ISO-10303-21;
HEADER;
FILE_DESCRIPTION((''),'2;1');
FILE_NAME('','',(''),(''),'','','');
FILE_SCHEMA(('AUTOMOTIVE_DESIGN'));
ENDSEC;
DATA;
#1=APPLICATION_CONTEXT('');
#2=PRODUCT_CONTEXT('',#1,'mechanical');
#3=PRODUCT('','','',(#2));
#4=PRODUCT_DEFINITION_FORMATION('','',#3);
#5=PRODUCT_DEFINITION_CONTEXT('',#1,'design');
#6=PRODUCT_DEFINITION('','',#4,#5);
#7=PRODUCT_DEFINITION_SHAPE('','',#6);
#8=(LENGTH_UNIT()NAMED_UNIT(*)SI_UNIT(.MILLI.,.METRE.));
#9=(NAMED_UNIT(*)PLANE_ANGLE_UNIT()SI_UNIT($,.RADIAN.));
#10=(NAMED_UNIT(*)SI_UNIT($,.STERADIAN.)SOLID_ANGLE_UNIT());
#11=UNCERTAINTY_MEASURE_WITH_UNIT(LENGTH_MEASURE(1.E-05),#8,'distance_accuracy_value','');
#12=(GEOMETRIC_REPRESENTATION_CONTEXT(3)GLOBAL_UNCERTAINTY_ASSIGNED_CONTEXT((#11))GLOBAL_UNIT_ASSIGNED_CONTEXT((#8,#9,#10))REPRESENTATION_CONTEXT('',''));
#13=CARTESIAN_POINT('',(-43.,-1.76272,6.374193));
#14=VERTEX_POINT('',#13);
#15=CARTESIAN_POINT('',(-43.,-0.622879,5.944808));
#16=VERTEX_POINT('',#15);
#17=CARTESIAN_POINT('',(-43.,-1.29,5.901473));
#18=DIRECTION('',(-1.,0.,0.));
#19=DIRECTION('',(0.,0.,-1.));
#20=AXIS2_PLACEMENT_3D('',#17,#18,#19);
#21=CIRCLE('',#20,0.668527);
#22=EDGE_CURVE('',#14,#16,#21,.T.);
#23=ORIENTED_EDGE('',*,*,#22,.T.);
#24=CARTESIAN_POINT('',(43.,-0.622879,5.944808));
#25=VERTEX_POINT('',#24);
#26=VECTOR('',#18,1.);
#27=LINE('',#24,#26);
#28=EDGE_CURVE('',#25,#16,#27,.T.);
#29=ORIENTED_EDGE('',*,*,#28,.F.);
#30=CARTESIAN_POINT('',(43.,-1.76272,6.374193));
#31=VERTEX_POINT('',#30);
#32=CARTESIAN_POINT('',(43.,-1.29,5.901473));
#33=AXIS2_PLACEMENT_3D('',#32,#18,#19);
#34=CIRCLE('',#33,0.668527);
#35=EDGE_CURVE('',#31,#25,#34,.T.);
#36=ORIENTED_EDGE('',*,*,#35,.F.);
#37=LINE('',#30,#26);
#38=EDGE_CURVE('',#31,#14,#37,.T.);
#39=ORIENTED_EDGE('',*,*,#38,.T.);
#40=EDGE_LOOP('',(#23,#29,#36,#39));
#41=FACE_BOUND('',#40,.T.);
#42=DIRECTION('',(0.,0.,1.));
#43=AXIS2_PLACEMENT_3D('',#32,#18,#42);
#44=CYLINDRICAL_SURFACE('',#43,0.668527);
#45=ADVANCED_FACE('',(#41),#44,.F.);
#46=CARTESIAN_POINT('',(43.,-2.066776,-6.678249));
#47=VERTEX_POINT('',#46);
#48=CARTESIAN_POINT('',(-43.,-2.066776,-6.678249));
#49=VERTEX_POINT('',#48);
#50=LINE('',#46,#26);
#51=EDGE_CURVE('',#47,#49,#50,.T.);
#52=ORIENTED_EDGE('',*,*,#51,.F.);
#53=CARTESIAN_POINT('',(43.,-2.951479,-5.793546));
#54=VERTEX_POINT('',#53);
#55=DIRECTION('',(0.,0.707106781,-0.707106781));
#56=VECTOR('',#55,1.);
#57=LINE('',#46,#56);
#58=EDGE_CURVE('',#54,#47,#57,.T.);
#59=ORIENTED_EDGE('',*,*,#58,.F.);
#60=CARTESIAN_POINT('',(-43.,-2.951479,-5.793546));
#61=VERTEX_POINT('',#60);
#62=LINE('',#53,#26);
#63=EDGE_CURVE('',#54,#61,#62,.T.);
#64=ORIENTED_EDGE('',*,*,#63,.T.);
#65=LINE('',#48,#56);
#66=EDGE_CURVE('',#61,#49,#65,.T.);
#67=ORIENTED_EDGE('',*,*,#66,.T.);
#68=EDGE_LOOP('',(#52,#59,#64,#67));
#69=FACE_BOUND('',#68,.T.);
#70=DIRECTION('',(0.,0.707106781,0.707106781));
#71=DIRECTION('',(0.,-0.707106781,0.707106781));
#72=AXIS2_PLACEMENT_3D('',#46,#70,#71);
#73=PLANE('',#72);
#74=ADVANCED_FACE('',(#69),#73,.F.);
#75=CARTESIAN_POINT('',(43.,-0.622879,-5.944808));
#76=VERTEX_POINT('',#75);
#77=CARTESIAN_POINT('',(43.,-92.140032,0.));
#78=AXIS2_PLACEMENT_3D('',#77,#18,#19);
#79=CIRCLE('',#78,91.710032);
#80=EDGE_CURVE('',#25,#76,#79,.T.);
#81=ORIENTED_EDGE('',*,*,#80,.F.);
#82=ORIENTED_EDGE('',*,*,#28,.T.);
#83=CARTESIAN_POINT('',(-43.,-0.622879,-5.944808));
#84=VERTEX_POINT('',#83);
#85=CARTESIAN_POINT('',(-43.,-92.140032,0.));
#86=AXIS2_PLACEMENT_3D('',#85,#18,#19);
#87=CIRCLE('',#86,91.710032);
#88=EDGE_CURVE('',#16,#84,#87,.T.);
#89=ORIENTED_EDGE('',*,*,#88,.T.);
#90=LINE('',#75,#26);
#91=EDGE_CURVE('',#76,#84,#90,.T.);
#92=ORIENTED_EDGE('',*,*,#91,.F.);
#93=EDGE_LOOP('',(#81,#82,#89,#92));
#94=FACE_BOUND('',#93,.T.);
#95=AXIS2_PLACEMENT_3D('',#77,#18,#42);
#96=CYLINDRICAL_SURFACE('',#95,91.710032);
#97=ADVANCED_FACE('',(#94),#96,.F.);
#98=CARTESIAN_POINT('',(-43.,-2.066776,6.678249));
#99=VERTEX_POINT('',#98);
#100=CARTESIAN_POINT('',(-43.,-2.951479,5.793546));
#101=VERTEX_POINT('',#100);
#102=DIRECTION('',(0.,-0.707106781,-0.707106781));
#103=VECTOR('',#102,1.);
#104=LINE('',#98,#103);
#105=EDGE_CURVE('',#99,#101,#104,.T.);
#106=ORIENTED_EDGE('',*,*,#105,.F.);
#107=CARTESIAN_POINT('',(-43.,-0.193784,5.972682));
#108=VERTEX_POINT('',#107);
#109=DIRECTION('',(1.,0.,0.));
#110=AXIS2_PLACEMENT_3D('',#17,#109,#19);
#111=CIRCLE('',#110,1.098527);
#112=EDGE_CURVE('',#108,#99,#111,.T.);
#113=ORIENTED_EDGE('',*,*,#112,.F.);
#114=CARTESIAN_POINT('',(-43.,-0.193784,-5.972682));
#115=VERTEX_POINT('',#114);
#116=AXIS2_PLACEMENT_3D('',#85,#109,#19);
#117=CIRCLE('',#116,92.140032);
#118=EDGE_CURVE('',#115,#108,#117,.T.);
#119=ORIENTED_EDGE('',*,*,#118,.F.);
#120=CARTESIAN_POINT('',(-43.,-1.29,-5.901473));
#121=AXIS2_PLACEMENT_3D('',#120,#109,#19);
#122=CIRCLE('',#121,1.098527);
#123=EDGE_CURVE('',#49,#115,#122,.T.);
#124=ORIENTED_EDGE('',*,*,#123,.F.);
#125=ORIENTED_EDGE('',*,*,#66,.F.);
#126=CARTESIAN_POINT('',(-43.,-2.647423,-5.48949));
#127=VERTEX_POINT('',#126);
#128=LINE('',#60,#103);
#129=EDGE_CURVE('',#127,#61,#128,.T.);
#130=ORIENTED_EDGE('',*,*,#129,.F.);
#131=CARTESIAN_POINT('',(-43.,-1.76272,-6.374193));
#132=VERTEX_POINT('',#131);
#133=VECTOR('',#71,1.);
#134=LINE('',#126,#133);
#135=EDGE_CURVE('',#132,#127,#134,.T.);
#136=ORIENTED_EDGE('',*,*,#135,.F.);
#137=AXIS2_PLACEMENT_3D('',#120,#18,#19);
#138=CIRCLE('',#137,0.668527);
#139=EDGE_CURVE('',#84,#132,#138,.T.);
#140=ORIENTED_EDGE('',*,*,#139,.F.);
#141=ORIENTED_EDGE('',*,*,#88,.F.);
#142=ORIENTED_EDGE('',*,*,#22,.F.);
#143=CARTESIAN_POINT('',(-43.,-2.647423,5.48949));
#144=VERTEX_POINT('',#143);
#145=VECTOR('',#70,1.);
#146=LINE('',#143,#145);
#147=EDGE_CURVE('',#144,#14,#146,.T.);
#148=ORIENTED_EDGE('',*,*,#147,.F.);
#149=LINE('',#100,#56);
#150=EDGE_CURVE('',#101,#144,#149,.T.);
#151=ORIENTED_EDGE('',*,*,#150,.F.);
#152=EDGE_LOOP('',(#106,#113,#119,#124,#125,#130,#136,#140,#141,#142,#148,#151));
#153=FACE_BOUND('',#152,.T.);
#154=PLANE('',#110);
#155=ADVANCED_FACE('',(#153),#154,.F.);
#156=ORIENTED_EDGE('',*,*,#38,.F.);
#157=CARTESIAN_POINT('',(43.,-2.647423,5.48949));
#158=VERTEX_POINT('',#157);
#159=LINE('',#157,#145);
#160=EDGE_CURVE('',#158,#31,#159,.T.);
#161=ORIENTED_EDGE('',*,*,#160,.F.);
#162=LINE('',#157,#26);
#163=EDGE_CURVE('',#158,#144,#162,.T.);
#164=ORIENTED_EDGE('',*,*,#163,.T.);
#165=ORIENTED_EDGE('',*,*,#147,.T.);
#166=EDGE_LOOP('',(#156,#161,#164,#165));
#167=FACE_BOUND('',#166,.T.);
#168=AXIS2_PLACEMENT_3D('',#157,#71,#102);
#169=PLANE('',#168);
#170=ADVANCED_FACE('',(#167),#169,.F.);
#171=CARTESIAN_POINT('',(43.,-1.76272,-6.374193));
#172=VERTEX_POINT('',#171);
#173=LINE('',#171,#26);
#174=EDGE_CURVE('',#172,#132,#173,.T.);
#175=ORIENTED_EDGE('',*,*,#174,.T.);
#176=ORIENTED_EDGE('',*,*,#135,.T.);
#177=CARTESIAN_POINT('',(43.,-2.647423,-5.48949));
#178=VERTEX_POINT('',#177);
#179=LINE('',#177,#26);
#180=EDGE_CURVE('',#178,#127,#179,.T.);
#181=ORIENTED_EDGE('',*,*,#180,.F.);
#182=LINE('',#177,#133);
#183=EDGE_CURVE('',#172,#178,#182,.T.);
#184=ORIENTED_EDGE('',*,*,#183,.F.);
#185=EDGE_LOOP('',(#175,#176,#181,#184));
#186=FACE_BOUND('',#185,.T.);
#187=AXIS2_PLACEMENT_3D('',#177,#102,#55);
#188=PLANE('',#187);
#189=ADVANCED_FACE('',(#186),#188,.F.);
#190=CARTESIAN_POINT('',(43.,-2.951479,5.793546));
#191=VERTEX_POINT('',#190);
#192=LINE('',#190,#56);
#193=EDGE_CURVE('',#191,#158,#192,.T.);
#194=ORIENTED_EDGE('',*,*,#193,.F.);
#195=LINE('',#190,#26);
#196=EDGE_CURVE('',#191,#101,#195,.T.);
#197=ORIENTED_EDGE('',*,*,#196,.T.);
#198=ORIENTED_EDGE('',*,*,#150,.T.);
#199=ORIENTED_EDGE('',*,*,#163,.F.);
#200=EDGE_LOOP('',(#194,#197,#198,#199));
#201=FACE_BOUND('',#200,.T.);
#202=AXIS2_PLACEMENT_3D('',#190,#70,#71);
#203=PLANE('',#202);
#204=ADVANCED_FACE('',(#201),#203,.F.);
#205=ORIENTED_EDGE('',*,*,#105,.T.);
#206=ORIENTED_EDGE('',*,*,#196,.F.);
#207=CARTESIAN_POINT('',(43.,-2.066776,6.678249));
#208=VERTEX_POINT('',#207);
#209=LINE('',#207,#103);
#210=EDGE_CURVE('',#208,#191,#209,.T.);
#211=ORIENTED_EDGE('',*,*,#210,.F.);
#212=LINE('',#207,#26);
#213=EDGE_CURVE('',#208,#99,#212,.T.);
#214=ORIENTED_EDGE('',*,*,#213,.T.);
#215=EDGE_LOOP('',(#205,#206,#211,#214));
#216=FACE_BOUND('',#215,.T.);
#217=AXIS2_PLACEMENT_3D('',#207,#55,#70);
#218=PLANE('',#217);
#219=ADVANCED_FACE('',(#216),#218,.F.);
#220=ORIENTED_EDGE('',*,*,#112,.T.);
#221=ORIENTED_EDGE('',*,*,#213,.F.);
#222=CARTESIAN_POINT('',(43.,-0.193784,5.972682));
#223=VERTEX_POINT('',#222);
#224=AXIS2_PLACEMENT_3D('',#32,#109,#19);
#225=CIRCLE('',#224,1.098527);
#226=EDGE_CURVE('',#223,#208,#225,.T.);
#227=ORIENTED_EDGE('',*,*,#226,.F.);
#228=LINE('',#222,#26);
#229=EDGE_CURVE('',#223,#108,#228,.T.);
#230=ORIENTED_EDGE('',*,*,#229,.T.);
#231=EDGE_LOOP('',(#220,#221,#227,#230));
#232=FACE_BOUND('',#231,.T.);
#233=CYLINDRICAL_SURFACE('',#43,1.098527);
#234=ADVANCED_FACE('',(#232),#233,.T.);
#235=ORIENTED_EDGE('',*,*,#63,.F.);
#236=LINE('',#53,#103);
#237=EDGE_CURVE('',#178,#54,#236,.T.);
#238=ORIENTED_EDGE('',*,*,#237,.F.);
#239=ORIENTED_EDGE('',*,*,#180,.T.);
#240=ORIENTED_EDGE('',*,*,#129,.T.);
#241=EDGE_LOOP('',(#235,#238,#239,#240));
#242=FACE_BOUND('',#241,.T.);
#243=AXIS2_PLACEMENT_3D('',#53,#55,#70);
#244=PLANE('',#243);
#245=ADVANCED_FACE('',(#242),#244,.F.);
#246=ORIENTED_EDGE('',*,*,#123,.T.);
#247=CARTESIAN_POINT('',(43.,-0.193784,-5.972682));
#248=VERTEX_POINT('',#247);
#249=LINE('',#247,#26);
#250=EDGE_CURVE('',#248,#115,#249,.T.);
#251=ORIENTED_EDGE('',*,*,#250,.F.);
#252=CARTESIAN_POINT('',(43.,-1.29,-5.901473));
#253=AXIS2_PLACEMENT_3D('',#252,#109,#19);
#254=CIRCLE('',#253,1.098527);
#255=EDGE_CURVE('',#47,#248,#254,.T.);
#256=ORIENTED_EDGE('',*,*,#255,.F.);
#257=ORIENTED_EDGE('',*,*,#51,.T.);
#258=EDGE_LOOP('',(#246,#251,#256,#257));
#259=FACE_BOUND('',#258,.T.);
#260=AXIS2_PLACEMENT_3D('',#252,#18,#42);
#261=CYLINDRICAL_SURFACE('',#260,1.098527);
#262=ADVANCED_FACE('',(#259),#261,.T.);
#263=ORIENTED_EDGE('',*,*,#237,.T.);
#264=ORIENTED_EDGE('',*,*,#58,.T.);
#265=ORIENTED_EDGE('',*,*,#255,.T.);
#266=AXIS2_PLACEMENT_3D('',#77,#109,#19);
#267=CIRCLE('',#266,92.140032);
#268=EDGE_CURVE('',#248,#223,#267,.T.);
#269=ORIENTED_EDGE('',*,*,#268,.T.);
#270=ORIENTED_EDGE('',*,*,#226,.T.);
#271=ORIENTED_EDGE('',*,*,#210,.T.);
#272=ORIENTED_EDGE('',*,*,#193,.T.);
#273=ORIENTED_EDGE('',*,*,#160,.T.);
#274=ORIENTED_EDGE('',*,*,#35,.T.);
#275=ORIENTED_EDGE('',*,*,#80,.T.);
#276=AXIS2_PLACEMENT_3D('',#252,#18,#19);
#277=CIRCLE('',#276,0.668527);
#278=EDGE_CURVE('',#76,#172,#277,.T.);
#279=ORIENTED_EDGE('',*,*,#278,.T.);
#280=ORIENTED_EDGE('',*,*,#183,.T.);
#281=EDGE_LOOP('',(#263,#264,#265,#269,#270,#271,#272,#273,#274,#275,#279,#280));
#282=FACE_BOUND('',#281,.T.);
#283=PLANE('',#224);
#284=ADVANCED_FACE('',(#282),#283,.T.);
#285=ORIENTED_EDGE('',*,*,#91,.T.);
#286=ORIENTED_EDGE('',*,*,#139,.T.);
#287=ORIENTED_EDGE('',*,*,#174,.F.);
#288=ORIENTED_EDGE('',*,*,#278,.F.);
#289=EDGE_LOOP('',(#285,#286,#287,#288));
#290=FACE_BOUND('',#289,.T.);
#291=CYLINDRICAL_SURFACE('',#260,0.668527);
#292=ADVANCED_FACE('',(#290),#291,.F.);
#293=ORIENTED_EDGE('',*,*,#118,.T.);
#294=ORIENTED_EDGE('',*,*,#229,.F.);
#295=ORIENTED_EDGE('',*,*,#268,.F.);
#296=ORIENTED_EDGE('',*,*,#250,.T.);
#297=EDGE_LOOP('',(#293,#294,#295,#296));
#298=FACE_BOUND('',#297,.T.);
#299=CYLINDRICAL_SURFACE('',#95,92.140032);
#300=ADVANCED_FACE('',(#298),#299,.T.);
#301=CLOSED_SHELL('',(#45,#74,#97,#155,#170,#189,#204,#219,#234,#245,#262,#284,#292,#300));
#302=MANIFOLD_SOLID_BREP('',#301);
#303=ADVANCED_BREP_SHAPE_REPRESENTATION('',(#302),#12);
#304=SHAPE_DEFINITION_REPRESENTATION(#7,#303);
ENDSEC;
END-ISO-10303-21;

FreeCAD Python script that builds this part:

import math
import FreeCAD as App
import Part
import Sketcher

V = App.Vector
Q = App.Units.Quantity

doc = App.newDocument("Part")
body = doc.addObject("PartDesign::Body", "Body")

sketch1 = doc.addObject("Sketcher::SketchObject", "Sketch")
body.addObject(sketch1)
sketch1.AttachmentSupport = (doc.YZ_Plane, [""])
sketch1.MapMode = "FlatFace"
sketch1.addGeometry(Part.LineSegment(V(-2.95, -5.79, 0), V(-2.07, -6.68, 0)), False)
sketch1.addGeometry(Part.ArcOfCircle(Part.Circle(V(-1.29, -5.9, 0), V(0, 0, 1), 1.1), math.radians(-135), math.radians(-4)), False)
sketch1.addGeometry(Part.ArcOfCircle(Part.Circle(V(-92.14, 0, 0), V(0, 0, 1), 92.14), math.radians(-3.72), math.radians(3.72)), False)
sketch1.addGeometry(Part.ArcOfCircle(Part.Circle(V(-1.29, 5.9, 0), V(0, 0, 1), 1.1), math.radians(4), math.radians(135)), False)
sketch1.addGeometry(Part.LineSegment(V(-2.07, 6.68, 0), V(-2.95, 5.79, 0)), False)
sketch1.addGeometry(Part.LineSegment(V(-2.95, 5.79, 0), V(-2.65, 5.49, 0)), False)
sketch1.addGeometry(Part.LineSegment(V(-2.65, 5.49, 0), V(-1.76, 6.37, 0)), False)
sketch1.addGeometry(Part.ArcOfCircle(Part.Circle(V(-1.29, 5.9, 0), V(0, 0, 1), 0.67), math.radians(4), math.radians(135)), False)
sketch1.addGeometry(Part.ArcOfCircle(Part.Circle(V(-92.14, 0, 0), V(0, 0, 1), 91.71), math.radians(-3.72), math.radians(3.72)), False)
sketch1.addGeometry(Part.ArcOfCircle(Part.Circle(V(-1.29, -5.9, 0), V(0, 0, 1), 0.67), math.radians(-135), math.radians(-4)), False)
sketch1.addGeometry(Part.LineSegment(V(-1.76, -6.37, 0), V(-2.65, -5.49, 0)), False)
sketch1.addGeometry(Part.LineSegment(V(-2.65, -5.49, 0), V(-2.95, -5.79, 0)), False)
sketch1.addConstraint(Sketcher.Constraint("Tangent", 0, 2, 1, 1))
sketch1.addConstraint(Sketcher.Constraint("Tangent", 1, 2, 2, 1))
sketch1.addConstraint(Sketcher.Constraint("Tangent", 2, 2, 3, 1))
sketch1.addConstraint(Sketcher.Constraint("Tangent", 3, 2, 4, 1))
sketch1.addConstraint(Sketcher.Constraint("Coincident", 4, 2, 5, 1))
sketch1.addConstraint(Sketcher.Constraint("Coincident", 5, 2, 6, 1))
sketch1.addConstraint(Sketcher.Constraint("Tangent", 6, 2, 7, 2))
sketch1.addConstraint(Sketcher.Constraint("Tangent", 7, 1, 8, 2))
sketch1.addConstraint(Sketcher.Constraint("Tangent", 8, 1, 9, 2))
sketch1.addConstraint(Sketcher.Constraint("Tangent", 9, 1, 10, 1))
sketch1.addConstraint(Sketcher.Constraint("Coincident", 10, 2, 11, 1))
sketch1.addConstraint(Sketcher.Constraint("Coincident", 11, 2, 0, 1))
sketch1.addConstraint(Sketcher.Constraint("Coincident", 7, 3, 3, 3))
sketch1.addConstraint(Sketcher.Constraint("Coincident", 8, 3, 2, 3))
sketch1.addConstraint(Sketcher.Constraint("Coincident", 9, 3, 1, 3))
sketch1.addConstraint(Sketcher.Constraint("Equal", 1, 3))
sketch1.addConstraint(Sketcher.Constraint("Symmetric", 1, 3, 3, 3, -1))
sketch1.addConstraint(Sketcher.Constraint("Symmetric", 5, 2, 10, 2, -1))
sketch1.addConstraint(Sketcher.Constraint("Symmetric", 4, 2, 11, 2, -1))
sketch1.addConstraint(Sketcher.Constraint("Perpendicular", 0, 4))
sketch1.addConstraint(Sketcher.Constraint("Perpendicular", 4, 5))
sketch1.addConstraint(Sketcher.Constraint("Perpendicular", 5, 6))
sketch1.addConstraint(Sketcher.Constraint("Distance", 5, Q("0.43 mm")))
sketch1.addConstraint(Sketcher.Constraint("DistanceX", 1, 3, -1, 1, Q("1.29 mm")))
sketch1.addConstraint(Sketcher.Constraint("Radius", 1, Q("1.098527 mm")))
sketch1.addConstraint(Sketcher.Constraint("Radius", 2, Q("92.140032 mm")))
sketch1.addConstraint(Sketcher.Constraint("DistanceY", 8, 1, 5, 2, Q("11.434298 mm")))
sketch1.addConstraint(Sketcher.Constraint("Distance", 0, Q("1.251159 mm")))
pad1 = doc.addObject("PartDesign::Pad", "Pad")
body.addObject(pad1)
pad1.Profile = sketch1
pad1.Length = 86
pad1.Midplane = True

doc.recompute()
